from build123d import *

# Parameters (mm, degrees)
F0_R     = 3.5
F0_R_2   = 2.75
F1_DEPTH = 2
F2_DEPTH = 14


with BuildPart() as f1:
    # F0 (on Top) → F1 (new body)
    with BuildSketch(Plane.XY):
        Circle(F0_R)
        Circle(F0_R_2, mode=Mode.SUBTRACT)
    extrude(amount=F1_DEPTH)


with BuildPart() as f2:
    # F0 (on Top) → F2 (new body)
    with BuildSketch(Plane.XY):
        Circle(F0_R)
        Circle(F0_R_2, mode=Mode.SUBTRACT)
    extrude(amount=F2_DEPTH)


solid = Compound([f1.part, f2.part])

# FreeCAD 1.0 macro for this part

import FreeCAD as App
import Part
import Sketcher
from FreeCAD import Vector
Q = App.Units.Quantity

doc = App.newDocument("Part")
body = doc.addObject("PartDesign::Body", "Body")

# Sketch on XY plane
sketch1 = doc.addObject("Sketcher::SketchObject", "Sketch")
body.addObject(sketch1)
sketch1.AttachmentSupport = (doc.XY_Plane, [""])
sketch1.MapMode = "FlatFace"
sketch1.addGeometry([
    Part.Circle(Vector(0, 0, 0), Vector(0, 0, 1), 3.5),
    Part.Circle(Vector(0, 0, 0), Vector(0, 0, 1), 2.8),
], False)
sketch1.addConstraint([
    Sketcher.Constraint("Coincident", 0, 3, -1, 1),
    Sketcher.Constraint("Coincident", 1, 3, -1, 1),
    Sketcher.Constraint("Diameter", 0, Q("7 mm")),
    Sketcher.Constraint("Diameter", 1, Q("5.5 mm")),
])
pad1 = doc.addObject("PartDesign::Pad", "Pad")
body.addObject(pad1)
pad1.Profile = sketch1
pad1.Length = 2
body2 = doc.addObject("PartDesign::Body", "Body001")

# Sketch on XY plane
sketch2 = doc.addObject("Sketcher::SketchObject", "Sketch001")
body2.addObject(sketch2)
sketch2.AttachmentSupport = (doc.getObject("XY_Plane001"), [""])
sketch2.MapMode = "FlatFace"
sketch2.addGeometry([
    Part.Circle(Vector(0, 0, 0), Vector(0, 0, 1), 3.5),
    Part.Circle(Vector(0, 0, 0), Vector(0, 0, 1), 2.8),
], False)
sketch2.addConstraint([
    Sketcher.Constraint("Coincident", 0, 3, -1, 1),
    Sketcher.Constraint("Coincident", 1, 3, -1, 1),
    Sketcher.Constraint("Diameter", 0, Q("7 mm")),
    Sketcher.Constraint("Diameter", 1, Q("5.5 mm")),
])
pad2 = doc.addObject("PartDesign::Pad", "Pad001")
body2.addObject(pad2)
pad2.Profile = sketch2
pad2.Length = 14

doc.recompute()
